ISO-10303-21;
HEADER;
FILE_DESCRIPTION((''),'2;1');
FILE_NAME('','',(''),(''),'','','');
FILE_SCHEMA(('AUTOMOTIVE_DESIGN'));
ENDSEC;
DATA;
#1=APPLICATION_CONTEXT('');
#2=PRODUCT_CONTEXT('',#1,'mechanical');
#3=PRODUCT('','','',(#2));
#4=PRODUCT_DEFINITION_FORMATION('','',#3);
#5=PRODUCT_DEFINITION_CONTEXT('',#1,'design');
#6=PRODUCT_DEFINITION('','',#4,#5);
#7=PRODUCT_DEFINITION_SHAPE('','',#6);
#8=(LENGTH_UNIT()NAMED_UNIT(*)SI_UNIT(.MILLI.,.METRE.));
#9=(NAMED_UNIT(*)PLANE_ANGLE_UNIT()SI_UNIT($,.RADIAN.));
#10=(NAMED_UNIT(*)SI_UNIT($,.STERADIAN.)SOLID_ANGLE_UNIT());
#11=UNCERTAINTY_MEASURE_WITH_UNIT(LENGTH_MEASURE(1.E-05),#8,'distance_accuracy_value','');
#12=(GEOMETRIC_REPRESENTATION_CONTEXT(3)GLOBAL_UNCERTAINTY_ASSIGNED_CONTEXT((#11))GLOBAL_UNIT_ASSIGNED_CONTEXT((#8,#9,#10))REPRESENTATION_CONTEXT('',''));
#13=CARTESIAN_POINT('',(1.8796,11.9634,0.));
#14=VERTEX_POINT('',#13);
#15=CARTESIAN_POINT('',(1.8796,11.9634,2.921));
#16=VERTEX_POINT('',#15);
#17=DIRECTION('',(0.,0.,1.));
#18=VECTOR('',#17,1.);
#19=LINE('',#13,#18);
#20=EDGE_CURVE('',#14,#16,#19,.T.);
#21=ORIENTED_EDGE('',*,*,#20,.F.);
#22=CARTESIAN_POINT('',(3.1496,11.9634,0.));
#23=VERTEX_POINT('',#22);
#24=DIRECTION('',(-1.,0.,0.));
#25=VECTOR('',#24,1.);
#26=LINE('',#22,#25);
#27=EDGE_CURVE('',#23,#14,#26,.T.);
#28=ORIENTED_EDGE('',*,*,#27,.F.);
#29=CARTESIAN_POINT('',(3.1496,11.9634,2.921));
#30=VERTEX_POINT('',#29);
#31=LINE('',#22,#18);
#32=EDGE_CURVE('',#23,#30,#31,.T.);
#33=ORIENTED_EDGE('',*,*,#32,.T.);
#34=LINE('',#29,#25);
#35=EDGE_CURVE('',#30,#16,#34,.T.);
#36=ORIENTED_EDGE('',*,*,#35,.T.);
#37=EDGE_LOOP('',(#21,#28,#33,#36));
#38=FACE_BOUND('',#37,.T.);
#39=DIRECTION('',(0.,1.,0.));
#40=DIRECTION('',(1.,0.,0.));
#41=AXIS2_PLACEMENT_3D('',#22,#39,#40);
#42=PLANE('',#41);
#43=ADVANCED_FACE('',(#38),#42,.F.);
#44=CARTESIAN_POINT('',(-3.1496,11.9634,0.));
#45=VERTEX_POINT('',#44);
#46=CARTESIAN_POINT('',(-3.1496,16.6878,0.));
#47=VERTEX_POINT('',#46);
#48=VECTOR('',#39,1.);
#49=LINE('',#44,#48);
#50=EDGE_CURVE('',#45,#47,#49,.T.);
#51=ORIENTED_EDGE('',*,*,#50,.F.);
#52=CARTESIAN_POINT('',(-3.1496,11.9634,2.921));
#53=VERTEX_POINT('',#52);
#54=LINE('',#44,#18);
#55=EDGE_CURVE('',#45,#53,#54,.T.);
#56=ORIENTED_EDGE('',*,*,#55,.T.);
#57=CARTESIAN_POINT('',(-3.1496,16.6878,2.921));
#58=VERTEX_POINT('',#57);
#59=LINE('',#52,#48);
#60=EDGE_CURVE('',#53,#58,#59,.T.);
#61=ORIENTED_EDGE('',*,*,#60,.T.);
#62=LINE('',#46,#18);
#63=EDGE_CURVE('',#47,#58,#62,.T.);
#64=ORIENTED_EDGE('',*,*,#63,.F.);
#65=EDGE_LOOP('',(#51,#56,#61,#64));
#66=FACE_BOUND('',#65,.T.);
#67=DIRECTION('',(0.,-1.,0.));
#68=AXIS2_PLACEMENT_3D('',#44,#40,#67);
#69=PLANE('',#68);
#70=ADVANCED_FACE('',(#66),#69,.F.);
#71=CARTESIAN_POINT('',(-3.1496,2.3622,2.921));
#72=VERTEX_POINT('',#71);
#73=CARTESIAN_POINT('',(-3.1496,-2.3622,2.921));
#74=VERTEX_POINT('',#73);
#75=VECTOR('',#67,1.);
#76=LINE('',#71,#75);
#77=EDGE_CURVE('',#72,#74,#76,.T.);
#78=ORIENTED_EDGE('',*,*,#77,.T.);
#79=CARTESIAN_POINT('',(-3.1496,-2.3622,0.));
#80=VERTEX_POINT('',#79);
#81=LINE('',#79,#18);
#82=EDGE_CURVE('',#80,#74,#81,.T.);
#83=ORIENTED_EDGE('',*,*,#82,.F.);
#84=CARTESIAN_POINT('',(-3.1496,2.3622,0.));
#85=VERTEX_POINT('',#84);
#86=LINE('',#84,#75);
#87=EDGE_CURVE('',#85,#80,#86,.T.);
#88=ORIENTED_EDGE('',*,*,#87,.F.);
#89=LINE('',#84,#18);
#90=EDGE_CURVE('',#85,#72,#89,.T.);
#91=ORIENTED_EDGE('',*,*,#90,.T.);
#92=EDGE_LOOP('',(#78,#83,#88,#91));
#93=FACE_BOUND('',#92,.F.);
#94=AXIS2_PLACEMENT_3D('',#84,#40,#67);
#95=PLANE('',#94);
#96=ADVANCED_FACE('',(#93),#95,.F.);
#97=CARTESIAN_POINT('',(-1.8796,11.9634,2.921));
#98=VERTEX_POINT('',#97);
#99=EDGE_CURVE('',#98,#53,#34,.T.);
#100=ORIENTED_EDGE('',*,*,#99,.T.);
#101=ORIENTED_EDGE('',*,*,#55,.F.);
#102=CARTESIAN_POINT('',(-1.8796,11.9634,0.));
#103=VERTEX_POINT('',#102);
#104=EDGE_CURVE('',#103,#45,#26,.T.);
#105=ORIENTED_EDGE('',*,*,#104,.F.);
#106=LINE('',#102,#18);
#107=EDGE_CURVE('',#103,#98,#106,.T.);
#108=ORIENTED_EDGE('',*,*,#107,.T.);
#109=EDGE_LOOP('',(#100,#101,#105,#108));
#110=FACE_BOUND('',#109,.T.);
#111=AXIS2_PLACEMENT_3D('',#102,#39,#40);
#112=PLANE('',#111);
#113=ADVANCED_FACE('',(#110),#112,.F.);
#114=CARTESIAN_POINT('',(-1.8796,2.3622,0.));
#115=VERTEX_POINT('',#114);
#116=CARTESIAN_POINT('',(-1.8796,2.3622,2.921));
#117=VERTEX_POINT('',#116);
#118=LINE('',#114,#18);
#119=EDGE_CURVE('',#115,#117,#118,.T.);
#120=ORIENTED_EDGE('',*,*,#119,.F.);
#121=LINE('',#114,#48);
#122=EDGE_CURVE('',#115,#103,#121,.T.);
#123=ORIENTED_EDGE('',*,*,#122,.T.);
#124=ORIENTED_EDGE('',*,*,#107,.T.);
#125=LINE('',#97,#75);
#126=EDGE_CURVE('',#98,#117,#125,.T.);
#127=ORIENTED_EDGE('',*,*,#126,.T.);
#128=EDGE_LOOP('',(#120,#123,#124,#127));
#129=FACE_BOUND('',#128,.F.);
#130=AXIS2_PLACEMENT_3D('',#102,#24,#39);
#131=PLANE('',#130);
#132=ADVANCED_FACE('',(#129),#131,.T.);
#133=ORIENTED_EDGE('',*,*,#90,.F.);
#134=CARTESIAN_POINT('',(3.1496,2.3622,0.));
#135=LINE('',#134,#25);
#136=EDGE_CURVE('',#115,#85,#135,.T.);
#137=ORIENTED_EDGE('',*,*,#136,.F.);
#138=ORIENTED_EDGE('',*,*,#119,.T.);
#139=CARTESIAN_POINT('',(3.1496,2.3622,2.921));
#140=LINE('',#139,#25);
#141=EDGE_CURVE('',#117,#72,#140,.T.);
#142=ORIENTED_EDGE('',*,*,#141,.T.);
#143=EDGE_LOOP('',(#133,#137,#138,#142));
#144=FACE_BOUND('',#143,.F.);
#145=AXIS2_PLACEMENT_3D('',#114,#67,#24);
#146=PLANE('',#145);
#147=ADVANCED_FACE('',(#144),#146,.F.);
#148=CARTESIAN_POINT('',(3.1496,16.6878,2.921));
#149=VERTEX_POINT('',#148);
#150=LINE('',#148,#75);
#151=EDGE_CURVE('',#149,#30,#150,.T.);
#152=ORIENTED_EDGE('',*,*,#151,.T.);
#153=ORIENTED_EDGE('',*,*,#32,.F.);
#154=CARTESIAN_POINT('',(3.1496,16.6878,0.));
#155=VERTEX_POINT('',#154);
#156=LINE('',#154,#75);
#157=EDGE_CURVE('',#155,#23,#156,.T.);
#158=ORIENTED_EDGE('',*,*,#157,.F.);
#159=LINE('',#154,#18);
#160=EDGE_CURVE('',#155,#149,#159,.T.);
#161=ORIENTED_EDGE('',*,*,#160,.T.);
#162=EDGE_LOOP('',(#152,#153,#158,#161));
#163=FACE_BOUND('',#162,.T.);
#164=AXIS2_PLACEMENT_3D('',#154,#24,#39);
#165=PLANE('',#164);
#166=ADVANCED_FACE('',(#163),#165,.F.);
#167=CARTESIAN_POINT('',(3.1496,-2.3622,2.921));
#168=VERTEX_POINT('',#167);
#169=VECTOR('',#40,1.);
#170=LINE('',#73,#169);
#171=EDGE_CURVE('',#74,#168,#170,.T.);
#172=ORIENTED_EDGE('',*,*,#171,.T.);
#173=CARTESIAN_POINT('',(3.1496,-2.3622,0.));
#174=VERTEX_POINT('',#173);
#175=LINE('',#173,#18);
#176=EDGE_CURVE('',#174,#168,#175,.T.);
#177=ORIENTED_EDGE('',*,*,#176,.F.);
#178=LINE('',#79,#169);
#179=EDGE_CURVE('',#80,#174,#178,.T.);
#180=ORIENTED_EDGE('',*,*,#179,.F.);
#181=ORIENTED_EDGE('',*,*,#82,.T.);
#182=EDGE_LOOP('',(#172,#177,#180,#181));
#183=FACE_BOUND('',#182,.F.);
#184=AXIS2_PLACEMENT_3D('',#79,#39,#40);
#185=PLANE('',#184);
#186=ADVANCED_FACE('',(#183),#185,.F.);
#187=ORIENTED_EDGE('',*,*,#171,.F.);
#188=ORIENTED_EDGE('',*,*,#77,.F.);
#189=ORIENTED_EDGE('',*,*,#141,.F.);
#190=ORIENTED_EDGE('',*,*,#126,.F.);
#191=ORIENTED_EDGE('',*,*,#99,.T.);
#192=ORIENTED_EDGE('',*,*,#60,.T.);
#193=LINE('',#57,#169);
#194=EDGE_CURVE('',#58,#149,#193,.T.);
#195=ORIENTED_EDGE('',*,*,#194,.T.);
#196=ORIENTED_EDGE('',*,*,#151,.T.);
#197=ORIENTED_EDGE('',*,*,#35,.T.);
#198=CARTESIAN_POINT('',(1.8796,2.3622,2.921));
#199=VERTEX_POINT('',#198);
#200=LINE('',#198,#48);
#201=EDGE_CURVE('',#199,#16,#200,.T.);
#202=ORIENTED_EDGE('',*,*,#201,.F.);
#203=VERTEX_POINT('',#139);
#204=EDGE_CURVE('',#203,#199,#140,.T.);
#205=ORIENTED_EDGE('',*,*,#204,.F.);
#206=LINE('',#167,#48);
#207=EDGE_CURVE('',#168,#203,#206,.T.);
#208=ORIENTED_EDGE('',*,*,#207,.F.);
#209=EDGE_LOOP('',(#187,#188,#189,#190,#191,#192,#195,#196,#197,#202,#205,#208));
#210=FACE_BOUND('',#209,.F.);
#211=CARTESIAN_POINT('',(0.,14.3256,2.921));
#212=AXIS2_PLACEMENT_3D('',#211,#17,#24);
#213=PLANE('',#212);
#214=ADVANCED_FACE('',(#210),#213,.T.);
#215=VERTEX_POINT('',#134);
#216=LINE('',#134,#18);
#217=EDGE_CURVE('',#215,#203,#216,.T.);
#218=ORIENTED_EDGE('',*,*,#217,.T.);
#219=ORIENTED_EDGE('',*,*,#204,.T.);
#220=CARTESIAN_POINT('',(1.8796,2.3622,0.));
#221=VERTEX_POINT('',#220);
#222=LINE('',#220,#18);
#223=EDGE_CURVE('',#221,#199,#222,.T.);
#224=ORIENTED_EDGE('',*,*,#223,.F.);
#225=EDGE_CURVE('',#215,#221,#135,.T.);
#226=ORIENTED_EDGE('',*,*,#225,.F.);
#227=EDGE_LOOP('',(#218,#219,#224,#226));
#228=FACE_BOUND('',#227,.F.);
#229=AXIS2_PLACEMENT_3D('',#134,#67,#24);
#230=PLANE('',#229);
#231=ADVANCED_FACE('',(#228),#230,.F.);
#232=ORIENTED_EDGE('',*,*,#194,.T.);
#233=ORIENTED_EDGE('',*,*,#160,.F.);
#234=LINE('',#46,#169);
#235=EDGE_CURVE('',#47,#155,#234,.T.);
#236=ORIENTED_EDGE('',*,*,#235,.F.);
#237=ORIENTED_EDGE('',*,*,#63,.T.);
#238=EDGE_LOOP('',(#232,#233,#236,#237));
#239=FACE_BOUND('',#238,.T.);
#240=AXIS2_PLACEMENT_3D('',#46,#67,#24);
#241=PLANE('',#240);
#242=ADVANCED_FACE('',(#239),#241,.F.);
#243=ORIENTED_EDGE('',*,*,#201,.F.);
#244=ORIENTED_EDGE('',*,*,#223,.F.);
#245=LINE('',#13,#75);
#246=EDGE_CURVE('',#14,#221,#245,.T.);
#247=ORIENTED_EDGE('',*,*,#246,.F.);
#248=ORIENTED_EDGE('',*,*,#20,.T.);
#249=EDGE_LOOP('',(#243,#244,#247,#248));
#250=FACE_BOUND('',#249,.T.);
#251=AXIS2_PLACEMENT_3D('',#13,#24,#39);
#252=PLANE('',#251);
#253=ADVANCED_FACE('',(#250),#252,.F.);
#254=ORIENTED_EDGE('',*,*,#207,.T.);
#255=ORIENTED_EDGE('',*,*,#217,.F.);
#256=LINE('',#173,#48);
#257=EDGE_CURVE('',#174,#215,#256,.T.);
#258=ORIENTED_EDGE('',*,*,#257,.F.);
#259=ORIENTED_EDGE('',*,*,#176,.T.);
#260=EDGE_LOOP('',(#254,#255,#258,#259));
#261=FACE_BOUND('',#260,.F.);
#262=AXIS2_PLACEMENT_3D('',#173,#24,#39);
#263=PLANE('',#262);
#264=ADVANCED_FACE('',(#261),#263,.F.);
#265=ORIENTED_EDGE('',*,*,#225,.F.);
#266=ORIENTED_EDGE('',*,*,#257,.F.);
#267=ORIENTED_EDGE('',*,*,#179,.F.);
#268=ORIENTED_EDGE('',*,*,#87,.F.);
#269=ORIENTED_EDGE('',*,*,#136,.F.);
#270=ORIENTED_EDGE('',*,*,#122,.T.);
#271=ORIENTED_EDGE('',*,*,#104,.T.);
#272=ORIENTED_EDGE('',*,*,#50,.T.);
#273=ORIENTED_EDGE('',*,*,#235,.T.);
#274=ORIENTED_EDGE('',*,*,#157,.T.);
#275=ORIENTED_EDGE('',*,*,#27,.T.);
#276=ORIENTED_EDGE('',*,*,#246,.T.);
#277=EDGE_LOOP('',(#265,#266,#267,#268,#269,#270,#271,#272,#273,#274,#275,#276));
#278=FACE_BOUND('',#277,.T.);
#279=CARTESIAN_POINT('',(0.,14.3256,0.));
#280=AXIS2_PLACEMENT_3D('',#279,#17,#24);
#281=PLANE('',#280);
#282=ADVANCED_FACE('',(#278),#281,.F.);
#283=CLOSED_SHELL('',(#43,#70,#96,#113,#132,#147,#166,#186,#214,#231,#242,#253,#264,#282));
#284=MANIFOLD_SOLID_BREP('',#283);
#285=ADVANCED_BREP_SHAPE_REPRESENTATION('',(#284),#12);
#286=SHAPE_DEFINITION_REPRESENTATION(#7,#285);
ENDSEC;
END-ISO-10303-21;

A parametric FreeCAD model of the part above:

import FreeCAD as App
import Part
import Sketcher

V = App.Vector
Q = App.Units.Quantity


def add_polygon(sketch, points):
    """Adds a closed chain of lines whose ends are joined by coincident constraints."""
    first, n = sketch.GeometryCount, len(points)
    for a, b in zip(points, points[1:] + points[:1]):
        sketch.addGeometry(Part.LineSegment(App.Vector(*a, 0), App.Vector(*b, 0)), False)
    for i in range(n):
        sketch.addConstraint(Sketcher.Constraint("Coincident", first + i, 2, first + (i + 1) % n, 1))

doc = App.newDocument("Part")
body = doc.addObject("PartDesign::Body", "Body")

# Sketch on XY plane
sketch1 = body.newObject("Sketcher::SketchObject", "Sketch")
sketch1.AttachmentSupport = (doc.getObject("XY_Plane"), [""])
sketch1.MapMode = "FlatFace"
add_polygon(sketch1, [(3.1, -2.4), (3.1, 2.4), (1.9, 2.4), (1.9, 7.2), (-1.9, 7.2), (-1.9, 2.4), (-3.1, 2.4), (-3.1, -2.4)])  # lines 0-7
sketch1.addConstraint([
    Sketcher.Constraint("Vertical", 0),
    Sketcher.Constraint("Horizontal", 1),
    Sketcher.Constraint("Vertical", 2),
    Sketcher.Constraint("Horizontal", 3),
    Sketcher.Constraint("Vertical", 4),
    Sketcher.Constraint("Horizontal", 5),
    Sketcher.Constraint("Vertical", 6),
    Sketcher.Constraint("Horizontal", 7),
    Sketcher.Constraint("Symmetric", 0, 2, 6, 2, -1, 1),
    Sketcher.Constraint("Symmetric", 1, 2, 4, 2, -2),
    Sketcher.Constraint("DistanceX", 1, 2, 1, 1, Q("0.05 in")),
    Sketcher.Constraint("DistanceX", 3, 2, 3, 1, Q("0.148 in")),
    Sketcher.Constraint("DistanceY", 0, 1, 0, 2, Q("0.186 in")),
    Sketcher.Constraint("DistanceY", 2, 1, 2, 2, Q("0.189 in")),
])
pad1 = body.newObject("PartDesign::Pad", "Pad")
pad1.Profile = sketch1
pad1.Length = Q("0.115 in")
body2 = doc.addObject("PartDesign::Body", "Body001")
doc.recompute()

body2.BaseFeature = body
doc.recompute()

mirroring = doc.addObject("Part::Mirroring", "Mirroring")
mirroring.Source = body
mirroring.Base = V(0, 7.1628, 1.4605)
mirroring.Normal = V(0, 1, 0)
body3 = doc.addObject("PartDesign::Body", "Body002")
body3.BaseFeature = mirroring
boolean = body2.newObject("PartDesign::Boolean", "Boolean")
boolean.Type = "Fuse"
boolean.addObjects([body3])
doc.recompute()
mirroring.Visibility = False

doc.recompute()
